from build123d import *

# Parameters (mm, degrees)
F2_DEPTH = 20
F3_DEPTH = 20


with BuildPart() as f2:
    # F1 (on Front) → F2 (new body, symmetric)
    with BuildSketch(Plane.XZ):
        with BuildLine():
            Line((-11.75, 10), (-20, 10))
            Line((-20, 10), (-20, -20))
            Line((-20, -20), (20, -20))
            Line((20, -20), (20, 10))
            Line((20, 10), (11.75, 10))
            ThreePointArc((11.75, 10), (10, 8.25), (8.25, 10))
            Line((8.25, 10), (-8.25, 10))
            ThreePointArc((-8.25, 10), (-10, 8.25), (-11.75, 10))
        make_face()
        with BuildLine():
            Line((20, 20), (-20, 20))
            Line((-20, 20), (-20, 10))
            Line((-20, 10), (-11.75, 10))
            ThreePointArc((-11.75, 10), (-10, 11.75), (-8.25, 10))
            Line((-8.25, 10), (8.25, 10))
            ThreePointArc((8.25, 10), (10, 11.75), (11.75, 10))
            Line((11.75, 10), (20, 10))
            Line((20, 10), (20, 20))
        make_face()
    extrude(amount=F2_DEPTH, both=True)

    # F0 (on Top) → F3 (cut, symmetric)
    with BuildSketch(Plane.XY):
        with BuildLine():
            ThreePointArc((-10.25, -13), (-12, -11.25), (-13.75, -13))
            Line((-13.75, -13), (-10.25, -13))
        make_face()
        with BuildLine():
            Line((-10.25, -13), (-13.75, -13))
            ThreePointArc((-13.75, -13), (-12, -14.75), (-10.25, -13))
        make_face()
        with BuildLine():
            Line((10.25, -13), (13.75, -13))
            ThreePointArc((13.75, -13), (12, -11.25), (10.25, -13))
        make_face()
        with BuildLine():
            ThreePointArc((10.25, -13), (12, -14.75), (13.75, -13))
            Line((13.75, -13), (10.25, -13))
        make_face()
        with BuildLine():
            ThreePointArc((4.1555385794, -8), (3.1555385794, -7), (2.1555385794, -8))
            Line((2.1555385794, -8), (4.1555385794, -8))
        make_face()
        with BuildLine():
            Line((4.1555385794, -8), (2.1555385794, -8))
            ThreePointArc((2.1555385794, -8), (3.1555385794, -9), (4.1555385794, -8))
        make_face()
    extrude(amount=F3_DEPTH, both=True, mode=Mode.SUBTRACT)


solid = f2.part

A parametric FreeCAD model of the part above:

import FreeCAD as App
import Part
import Sketcher
Q = App.Units.Quantity


def add_polygon(sketch, points):
    """Adds a closed chain of lines whose ends are joined by coincident constraints."""
    first, n = sketch.GeometryCount, len(points)
    for a, b in zip(points, points[1:] + points[:1]):
        sketch.addGeometry(Part.LineSegment(App.Vector(*a, 0), App.Vector(*b, 0)), False)
    for i in range(n):
        sketch.addConstraint(Sketcher.Constraint("Coincident", first + i, 2, first + (i + 1) % n, 1))

doc = App.newDocument("Part")
body = doc.addObject("PartDesign::Body", "Body")

sketch1 = doc.addObject("Sketcher::SketchObject", "Sketch")
body.addObject(sketch1)
sketch1.AttachmentSupport = (doc.XZ_Plane, [""])
sketch1.MapMode = "FlatFace"
add_polygon(sketch1, [(-20, -20), (20, -20), (20, 20), (-20, 20)])
sketch1.addGeometry(Part.Circle(App.Vector(10, 10, 0), App.Vector(0, 0, 1), 1.8), False)
sketch1.addGeometry(Part.Circle(App.Vector(-10, 10, 0), App.Vector(0, 0, 1), 1.8), False)
sketch1.addConstraint(Sketcher.Constraint("Horizontal", 0))
sketch1.addConstraint(Sketcher.Constraint("Vertical", 1))
sketch1.addConstraint(Sketcher.Constraint("Horizontal", 2))
sketch1.addConstraint(Sketcher.Constraint("Vertical", 3))
sketch1.addConstraint(Sketcher.Constraint("Equal", 4, 5))
sketch1.addConstraint(Sketcher.Constraint("Symmetric", 0, 2, 2, 2, -1, 1))
sketch1.addConstraint(Sketcher.Constraint("Symmetric", 4, 3, 5, 3, -2))
sketch1.addConstraint(Sketcher.Constraint("Equal", 2, 1))
sketch1.addConstraint(Sketcher.Constraint("Diameter", 4, Q("3.5 mm")))
sketch1.addConstraint(Sketcher.Constraint("DistanceX", 0, 1, 0, 2, Q("40 mm")))
sketch1.addConstraint(Sketcher.Constraint("DistanceX", -1, 1, 4, 3, Q("10 mm")))
sketch1.addConstraint(Sketcher.Constraint("DistanceY", -1, 1, 4, 3, Q("10 mm")))
pad1 = doc.addObject("PartDesign::Pad", "Pad")
body.addObject(pad1)
pad1.Profile = sketch1
pad1.Length = 40
pad1.Midplane = True

sketch2 = doc.addObject("Sketcher::SketchObject", "Sketch001")
body.addObject(sketch2)
sketch2.AttachmentSupport = (doc.XY_Plane, [""])
sketch2.MapMode = "FlatFace"
sketch2.addGeometry(Part.Circle(App.Vector(-12, -13, 0), App.Vector(0, 0, 1), 1.8), False)
sketch2.addGeometry(Part.Circle(App.Vector(12, -13, 0), App.Vector(0, 0, 1), 1.8), False)
sketch2.addGeometry(Part.Circle(App.Vector(3.2, -8, 0), App.Vector(0, 0, 1), 1), False)
sketch2.addConstraint(Sketcher.Constraint("Equal", 0, 1))
sketch2.addConstraint(Sketcher.Constraint("Symmetric", 0, 3, 1, 3, -2))
sketch2.addConstraint(Sketcher.Constraint("Diameter", 2, Q("2 mm")))
sketch2.addConstraint(Sketcher.Constraint("Diameter", 0, Q("3.5 mm")))
sketch2.addConstraint(Sketcher.Constraint("DistanceX", 0, 3, -1, 1, Q("12 mm")))
sketch2.addConstraint(Sketcher.Constraint("DistanceY", 0, 3, -1, 1, Q("13 mm")))
sketch2.addConstraint(Sketcher.Constraint("DistanceY", 2, 3, -1, 1, Q("8 mm")))
sketch2.addConstraint(Sketcher.Constraint("DistanceX", -1, 1, 2, 3, Q("3.155539 mm")))
pocket1 = doc.addObject("PartDesign::Pocket", "Pocket")
body.addObject(pocket1)
pocket1.Profile = sketch2
pocket1.Length = 40
pocket1.Midplane = True

doc.recompute()
